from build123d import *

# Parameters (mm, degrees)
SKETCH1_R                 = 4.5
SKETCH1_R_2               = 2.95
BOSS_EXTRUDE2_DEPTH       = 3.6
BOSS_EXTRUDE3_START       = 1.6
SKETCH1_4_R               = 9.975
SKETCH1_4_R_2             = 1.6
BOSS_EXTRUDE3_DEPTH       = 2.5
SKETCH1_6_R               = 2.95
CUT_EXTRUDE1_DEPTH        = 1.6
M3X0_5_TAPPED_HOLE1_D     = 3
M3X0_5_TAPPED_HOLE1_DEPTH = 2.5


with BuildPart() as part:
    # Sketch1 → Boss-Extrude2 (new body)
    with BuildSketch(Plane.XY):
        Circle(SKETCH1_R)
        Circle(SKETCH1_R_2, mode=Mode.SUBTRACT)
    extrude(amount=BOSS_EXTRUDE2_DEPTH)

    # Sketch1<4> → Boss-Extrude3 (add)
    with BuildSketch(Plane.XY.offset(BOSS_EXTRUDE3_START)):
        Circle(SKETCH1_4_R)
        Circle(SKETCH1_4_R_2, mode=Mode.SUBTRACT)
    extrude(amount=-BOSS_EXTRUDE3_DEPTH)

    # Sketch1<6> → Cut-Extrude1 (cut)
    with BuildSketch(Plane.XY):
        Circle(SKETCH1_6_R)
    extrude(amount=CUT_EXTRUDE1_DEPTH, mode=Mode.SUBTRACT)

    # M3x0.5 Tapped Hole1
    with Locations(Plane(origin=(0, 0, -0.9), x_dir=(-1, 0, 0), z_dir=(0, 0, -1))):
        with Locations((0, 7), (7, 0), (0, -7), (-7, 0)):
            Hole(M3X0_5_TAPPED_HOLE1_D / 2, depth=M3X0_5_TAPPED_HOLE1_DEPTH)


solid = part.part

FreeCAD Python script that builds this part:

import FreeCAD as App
import Part
import Sketcher

V = App.Vector

doc = App.newDocument("Part")
body = doc.addObject("PartDesign::Body", "Body")

sketch1 = body.newObject("Sketcher::SketchObject", "Sketch")
sketch1.AttachmentSupport = (doc.getObject("XY_Plane"), [""])
sketch1.MapMode = "FlatFace"
sketch1.addGeometry(Part.Circle(V(0, 0, 0), V(0, 0, 1), 4.5), False)
sketch1.addGeometry(Part.Circle(V(0, 0, 0), V(0, 0, 1), 3), False)
sketch1.addConstraint(Sketcher.Constraint("Coincident", 0, 3, -1, 1))
sketch1.addConstraint(Sketcher.Constraint("Coincident", 1, 3, -1, 1))
sketch1.addConstraint(Sketcher.Constraint("Diameter", 0, 9.0))
sketch1.addConstraint(Sketcher.Constraint("Diameter", 1, 5.9))
pad1 = body.newObject("PartDesign::Pad", "Pad")
pad1.Profile = sketch1
pad1.Length = 3.6

sketch2 = body.newObject("Sketcher::SketchObject", "Sketch001")
sketch2.AttachmentSupport = (doc.getObject("XY_Plane"), [""])
sketch2.MapMode = "FlatFace"
sketch2.AttachmentOffset = App.Placement(V(0, 0, 1.6), App.Rotation())
sketch2.addGeometry(Part.Circle(V(0, 0, 0), V(0, 0, 1), 10), False)
sketch2.addGeometry(Part.Circle(V(0, 0, 0), V(0, 0, 1), 1.6), False)
sketch2.addConstraint(Sketcher.Constraint("Coincident", 0, 3, -1, 1))
sketch2.addConstraint(Sketcher.Constraint("Coincident", 1, 3, -1, 1))
sketch2.addConstraint(Sketcher.Constraint("Diameter", 1, 3.2))
sketch2.addConstraint(Sketcher.Constraint("Diameter", 0, 19.95))
pad2 = body.newObject("PartDesign::Pad", "Pad001")
pad2.Profile = sketch2
pad2.Length = 2.5
pad2.Reversed = True

sketch3 = body.newObject("Sketcher::SketchObject", "Sketch002")
sketch3.AttachmentSupport = (doc.getObject("XY_Plane"), [""])
sketch3.MapMode = "FlatFace"
sketch3.addGeometry(Part.Circle(V(0, 0, 0), V(0, 0, 1), 3), False)
sketch3.addConstraint(Sketcher.Constraint("Coincident", 0, 3, -1, 1))
sketch3.addConstraint(Sketcher.Constraint("Diameter", 0, 5.9))
pocket1 = body.newObject("PartDesign::Pocket", "Pocket")
pocket1.Profile = sketch3
pocket1.Length = 1.6
pocket1.Reversed = True

sketch4 = body.newObject("Sketcher::SketchObject", "Sketch003")
sketch4.AttachmentSupport = (doc.getObject("XY_Plane"), [""])
sketch4.MapMode = "FlatFace"
sketch4.AttachmentOffset = App.Placement(V(0, 0, -0.9), App.Rotation())
sketch4.addGeometry(Part.Circle(V(0, 7, 0), V(0, 0, 1), 1.5), False)
sketch4.addGeometry(Part.Circle(V(-7, 0, 0), V(0, 0, 1), 1.5), False)
sketch4.addGeometry(Part.Circle(V(0, -7, 0), V(0, 0, 1), 1.5), False)
sketch4.addGeometry(Part.Circle(V(7, 0, 0), V(0, 0, 1), 1.5), False)
sketch4.addConstraint(Sketcher.Constraint("Equal", 0, 1))
sketch4.addConstraint(Sketcher.Constraint("Equal", 1, 2))
sketch4.addConstraint(Sketcher.Constraint("Equal", 2, 3))
sketch4.addConstraint(Sketcher.Constraint("Symmetric", 0, 3, 2, 3, -1, 1))
sketch4.addConstraint(Sketcher.Constraint("Symmetric", 1, 3, 3, 3, -1, 1))
sketch4.addConstraint(Sketcher.Constraint("PointOnObject", 0, 3, -2))
sketch4.addConstraint(Sketcher.Constraint("PointOnObject", 1, 3, -1))
sketch4.addConstraint(Sketcher.Constraint("Diameter", 0, 3.0))
sketch4.addConstraint(Sketcher.Constraint("DistanceY", -1, 1, 0, 3, 7.0))
sketch4.addConstraint(Sketcher.Constraint("DistanceX", 1, 3, -1, 1, 7.0))
doc.recompute()
hole = body.newObject("PartDesign::Hole", "Hole")
hole.Profile = sketch4
hole.ThreadType = "None"
hole.Diameter = 3
hole.DepthType = "Dimension"
hole.Depth = 2.5
hole.DrillPoint = "Flat"
hole.Reversed = True

doc.recompute()
